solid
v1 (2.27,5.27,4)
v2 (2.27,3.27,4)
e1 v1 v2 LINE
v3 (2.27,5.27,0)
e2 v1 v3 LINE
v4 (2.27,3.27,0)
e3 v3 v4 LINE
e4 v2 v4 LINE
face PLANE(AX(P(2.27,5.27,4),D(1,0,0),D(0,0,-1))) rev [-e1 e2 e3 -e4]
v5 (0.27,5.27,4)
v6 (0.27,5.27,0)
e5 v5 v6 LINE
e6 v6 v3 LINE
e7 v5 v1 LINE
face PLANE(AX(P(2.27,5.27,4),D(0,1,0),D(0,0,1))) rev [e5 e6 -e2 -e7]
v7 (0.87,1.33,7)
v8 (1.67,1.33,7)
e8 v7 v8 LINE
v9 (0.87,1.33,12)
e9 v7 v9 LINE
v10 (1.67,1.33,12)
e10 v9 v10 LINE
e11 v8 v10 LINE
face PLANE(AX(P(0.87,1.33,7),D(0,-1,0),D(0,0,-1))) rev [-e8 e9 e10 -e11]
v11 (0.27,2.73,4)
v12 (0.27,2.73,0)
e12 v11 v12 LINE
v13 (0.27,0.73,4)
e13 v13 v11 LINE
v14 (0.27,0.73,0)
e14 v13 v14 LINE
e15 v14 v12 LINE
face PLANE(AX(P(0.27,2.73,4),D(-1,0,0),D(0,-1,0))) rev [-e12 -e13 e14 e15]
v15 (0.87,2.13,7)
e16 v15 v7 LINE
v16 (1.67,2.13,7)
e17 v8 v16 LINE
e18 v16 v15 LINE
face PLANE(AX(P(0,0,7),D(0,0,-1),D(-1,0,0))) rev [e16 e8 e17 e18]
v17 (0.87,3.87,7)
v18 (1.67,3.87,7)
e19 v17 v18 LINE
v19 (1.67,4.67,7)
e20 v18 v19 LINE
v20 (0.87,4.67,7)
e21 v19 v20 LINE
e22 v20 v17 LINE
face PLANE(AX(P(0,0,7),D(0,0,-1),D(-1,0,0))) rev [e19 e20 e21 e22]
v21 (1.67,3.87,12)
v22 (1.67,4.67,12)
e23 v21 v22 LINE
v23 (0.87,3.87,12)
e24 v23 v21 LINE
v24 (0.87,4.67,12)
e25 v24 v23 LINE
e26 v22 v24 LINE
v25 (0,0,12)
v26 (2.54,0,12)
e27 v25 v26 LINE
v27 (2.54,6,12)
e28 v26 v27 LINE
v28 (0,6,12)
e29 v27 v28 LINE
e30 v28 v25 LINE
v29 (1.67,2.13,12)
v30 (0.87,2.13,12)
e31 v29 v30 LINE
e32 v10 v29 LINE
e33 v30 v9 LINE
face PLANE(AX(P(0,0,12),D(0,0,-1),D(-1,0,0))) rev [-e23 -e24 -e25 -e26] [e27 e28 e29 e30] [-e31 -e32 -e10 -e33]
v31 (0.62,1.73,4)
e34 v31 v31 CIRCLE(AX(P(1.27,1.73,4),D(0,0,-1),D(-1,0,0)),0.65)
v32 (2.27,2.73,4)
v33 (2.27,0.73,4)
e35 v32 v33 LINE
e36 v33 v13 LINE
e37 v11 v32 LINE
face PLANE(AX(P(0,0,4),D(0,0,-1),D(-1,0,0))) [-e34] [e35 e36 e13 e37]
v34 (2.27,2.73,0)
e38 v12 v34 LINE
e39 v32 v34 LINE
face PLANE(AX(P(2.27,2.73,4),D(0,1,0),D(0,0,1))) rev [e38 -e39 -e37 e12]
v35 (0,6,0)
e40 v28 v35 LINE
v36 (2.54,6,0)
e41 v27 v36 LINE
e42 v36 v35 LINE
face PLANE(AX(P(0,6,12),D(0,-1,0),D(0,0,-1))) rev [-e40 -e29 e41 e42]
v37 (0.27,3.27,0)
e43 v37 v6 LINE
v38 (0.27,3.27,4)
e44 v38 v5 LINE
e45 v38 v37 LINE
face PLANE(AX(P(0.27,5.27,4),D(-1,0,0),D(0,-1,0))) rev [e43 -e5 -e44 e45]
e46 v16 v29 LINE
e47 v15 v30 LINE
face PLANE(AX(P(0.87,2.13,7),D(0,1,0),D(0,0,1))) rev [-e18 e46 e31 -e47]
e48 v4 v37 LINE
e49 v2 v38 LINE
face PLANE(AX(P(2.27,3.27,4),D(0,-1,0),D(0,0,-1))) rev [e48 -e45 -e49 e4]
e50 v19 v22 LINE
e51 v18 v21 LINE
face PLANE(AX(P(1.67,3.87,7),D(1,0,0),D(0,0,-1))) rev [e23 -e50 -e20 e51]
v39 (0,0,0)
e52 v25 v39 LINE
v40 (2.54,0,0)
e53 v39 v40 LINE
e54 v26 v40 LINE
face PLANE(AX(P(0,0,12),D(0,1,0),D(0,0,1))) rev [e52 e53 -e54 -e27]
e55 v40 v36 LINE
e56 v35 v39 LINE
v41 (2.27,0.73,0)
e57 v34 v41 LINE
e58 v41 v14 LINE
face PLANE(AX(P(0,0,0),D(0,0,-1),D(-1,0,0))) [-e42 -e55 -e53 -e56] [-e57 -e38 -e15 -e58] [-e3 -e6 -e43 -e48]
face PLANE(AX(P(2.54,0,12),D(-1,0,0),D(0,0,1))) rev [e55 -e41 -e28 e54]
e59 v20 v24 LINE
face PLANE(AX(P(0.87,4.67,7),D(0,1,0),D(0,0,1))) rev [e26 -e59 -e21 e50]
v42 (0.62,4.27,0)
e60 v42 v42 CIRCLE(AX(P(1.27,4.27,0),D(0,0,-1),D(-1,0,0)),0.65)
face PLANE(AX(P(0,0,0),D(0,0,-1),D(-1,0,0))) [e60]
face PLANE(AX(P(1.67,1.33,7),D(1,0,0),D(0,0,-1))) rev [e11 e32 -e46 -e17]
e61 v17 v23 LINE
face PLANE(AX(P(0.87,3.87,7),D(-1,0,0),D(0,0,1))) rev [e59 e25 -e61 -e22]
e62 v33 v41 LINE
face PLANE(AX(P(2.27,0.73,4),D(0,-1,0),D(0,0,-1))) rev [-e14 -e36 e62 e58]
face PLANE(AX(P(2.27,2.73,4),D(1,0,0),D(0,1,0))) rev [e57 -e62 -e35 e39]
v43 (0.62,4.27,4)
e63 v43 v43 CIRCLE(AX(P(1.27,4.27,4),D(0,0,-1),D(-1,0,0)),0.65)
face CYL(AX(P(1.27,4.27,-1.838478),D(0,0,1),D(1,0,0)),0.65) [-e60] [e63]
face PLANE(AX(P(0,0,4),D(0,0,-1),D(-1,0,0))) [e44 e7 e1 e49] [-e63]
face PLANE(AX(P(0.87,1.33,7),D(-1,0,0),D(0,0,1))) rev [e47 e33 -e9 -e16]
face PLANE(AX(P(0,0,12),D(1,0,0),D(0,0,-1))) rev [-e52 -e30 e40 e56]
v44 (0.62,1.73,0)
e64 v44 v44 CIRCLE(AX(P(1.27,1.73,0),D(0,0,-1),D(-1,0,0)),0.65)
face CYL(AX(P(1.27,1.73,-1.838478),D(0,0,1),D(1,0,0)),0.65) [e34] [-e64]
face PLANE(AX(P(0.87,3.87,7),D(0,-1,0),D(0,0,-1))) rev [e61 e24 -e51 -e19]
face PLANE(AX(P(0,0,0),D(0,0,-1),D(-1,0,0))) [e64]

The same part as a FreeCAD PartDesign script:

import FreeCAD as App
import Part
import Sketcher
from FreeCAD import Vector

doc = App.newDocument("Part")
body = doc.addObject("PartDesign::Body", "Body")

# Sketch on XY plane
sketch1 = body.newObject("Sketcher::SketchObject", "Sketch")
sketch1.AttachmentSupport = (doc.getObject("XY_Plane"), [""])
sketch1.MapMode = "FlatFace"
sketch1.addGeometry([
    Part.LineSegment(Vector(0, 6, 0), Vector(0, 0, 0)),
    Part.LineSegment(Vector(0, 0, 0), Vector(2.5, 0, 0)),
    Part.LineSegment(Vector(2.5, 0, 0), Vector(2.5, 6, 0)),
    Part.LineSegment(Vector(2.5, 6, 0), Vector(0, 6, 0)),
], False)
sketch1.addConstraint([
    Sketcher.Constraint("Coincident", 0, 2, 1, 1),
    Sketcher.Constraint("Coincident", 1, 2, 2, 1),
    Sketcher.Constraint("Coincident", 2, 2, 3, 1),
    Sketcher.Constraint("Coincident", 3, 2, 0, 1),
    Sketcher.Constraint("Vertical", 0),
    Sketcher.Constraint("Horizontal", 1),
    Sketcher.Constraint("Vertical", 2),
    Sketcher.Constraint("Horizontal", 3),
    Sketcher.Constraint("Coincident", 0, 2, -1, 1),
    Sketcher.Constraint("DistanceY", 0, 2, 0, 1, 6.0),
    Sketcher.Constraint("DistanceX", 1, 1, 1, 2, 2.54),
])
pad1 = body.newObject("PartDesign::Pad", "Pad")
pad1.Profile = sketch1
pad1.Length = 12

# Sketch on XY plane
sketch2 = body.newObject("Sketcher::SketchObject", "Sketch001")
sketch2.AttachmentSupport = (doc.getObject("XY_Plane"), [""])
sketch2.MapMode = "FlatFace"
sketch2.addGeometry([
    Part.LineSegment(Vector(2.3, 5.3, 0), Vector(2.3, 3.3, 0)),  # 0
    Part.LineSegment(Vector(2.3, 3.3, 0), Vector(0.3, 3.3, 0)),  # 1
    Part.LineSegment(Vector(0.3, 3.3, 0), Vector(0.3, 5.3, 0)),  # 2
    Part.LineSegment(Vector(0.3, 5.3, 0), Vector(2.3, 5.3, 0)),  # 3
    Part.LineSegment(Vector(2.3, 2.7, 0), Vector(2.3, 0.7, 0)),  # 4
    Part.LineSegment(Vector(2.3, 0.7, 0), Vector(0.3, 0.7, 0)),  # 5
    Part.LineSegment(Vector(0.3, 0.7, 0), Vector(0.3, 2.7, 0)),  # 6
    Part.LineSegment(Vector(0.3, 2.7, 0), Vector(2.3, 2.7, 0)),  # 7
], False)
sketch2.addConstraint([
    Sketcher.Constraint("Coincident", 0, 2, 1, 1),
    Sketcher.Constraint("Coincident", 1, 2, 2, 1),
    Sketcher.Constraint("Coincident", 2, 2, 3, 1),
    Sketcher.Constraint("Coincident", 3, 2, 0, 1),
    Sketcher.Constraint("Coincident", 4, 2, 5, 1),
    Sketcher.Constraint("Coincident", 5, 2, 6, 1),
    Sketcher.Constraint("Coincident", 6, 2, 7, 1),
    Sketcher.Constraint("Coincident", 7, 2, 4, 1),
    Sketcher.Constraint("Vertical", 0),
    Sketcher.Constraint("Horizontal", 1),
    Sketcher.Constraint("Vertical", 2),
    Sketcher.Constraint("Horizontal", 3),
    Sketcher.Constraint("Vertical", 4),
    Sketcher.Constraint("Horizontal", 5),
    Sketcher.Constraint("Vertical", 6),
    Sketcher.Constraint("Horizontal", 7),
    Sketcher.Constraint("Vertical", 3, 2, 4, 2),
    Sketcher.Constraint("Vertical", 2, 2, 5, 2),
    Sketcher.Constraint("Equal", 7, 0),
    Sketcher.Constraint("Equal", 2, 4),
    Sketcher.Constraint("DistanceX", 1, 2, 1, 1, 2.0),
    Sketcher.Constraint("DistanceX", -1, 1, 0, 2, 2.27),
    Sketcher.Constraint("DistanceY", -1, 1, 0, 2, 3.27),
    Sketcher.Constraint("DistanceY", -1, 1, 4, 2, 0.73),
])
pocket1 = body.newObject("PartDesign::Pocket", "Pocket")
pocket1.Profile = sketch2
pocket1.Length = 4
pocket1.Reversed = True

# Sketch on XY plane
sketch3 = body.newObject("Sketcher::SketchObject", "Sketch002")
sketch3.AttachmentSupport = (doc.getObject("XY_Plane"), [""])
sketch3.MapMode = "FlatFace"
sketch3.AttachmentOffset = App.Placement(Vector(0, 0, 4), App.Rotation())
sketch3.addGeometry([
    Part.Circle(Vector(1.3, 4.3, 0), Vector(0, 0, 1), 0.7),
    Part.Circle(Vector(1.3, 1.7, 0), Vector(0, 0, 1), 0.7),
], False)
sketch3.addConstraint([
    Sketcher.Constraint("Equal", 0, 1),
    Sketcher.Constraint("Vertical", 0, 3, 1, 3),
    Sketcher.Constraint("Diameter", 0, 1.3),
    Sketcher.Constraint("DistanceX", -1, 1, 0, 3, 1.27),
    Sketcher.Constraint("DistanceY", -1, 1, 0, 3, 4.27),
    Sketcher.Constraint("DistanceY", -1, 1, 1, 3, 1.73),
])
pad2 = body.newObject("PartDesign::Pad", "Pad001")
pad2.Profile = sketch3
pad2.Length = 4
pad2.Reversed = True

# Sketch on XY plane
sketch4 = body.newObject("Sketcher::SketchObject", "Sketch003")
sketch4.AttachmentSupport = (doc.getObject("XY_Plane"), [""])
sketch4.MapMode = "FlatFace"
sketch4.AttachmentOffset = App.Placement(Vector(0, 0, 12), App.Rotation())
sketch4.addGeometry([
    Part.LineSegment(Vector(0.9, 4.7, 0), Vector(0.9, 3.9, 0)),  # 0
    Part.LineSegment(Vector(0.9, 3.9, 0), Vector(1.7, 3.9, 0)),  # 1
    Part.LineSegment(Vector(1.7, 3.9, 0), Vector(1.7, 4.7, 0)),  # 2
    Part.LineSegment(Vector(1.7, 4.7, 0), Vector(0.9, 4.7, 0)),  # 3
    Part.LineSegment(Vector(0.9, 2.1, 0), Vector(0.9, 1.3, 0)),  # 4
    Part.LineSegment(Vector(0.9, 1.3, 0), Vector(1.7, 1.3, 0)),  # 5
    Part.LineSegment(Vector(1.7, 1.3, 0), Vector(1.7, 2.1, 0)),  # 6
    Part.LineSegment(Vector(1.7, 2.1, 0), Vector(0.9, 2.1, 0)),  # 7
], False)
sketch4.addConstraint([
    Sketcher.Constraint("Coincident", 0, 2, 1, 1),
    Sketcher.Constraint("Coincident", 1, 2, 2, 1),
    Sketcher.Constraint("Coincident", 2, 2, 3, 1),
    Sketcher.Constraint("Coincident", 3, 2, 0, 1),
    Sketcher.Constraint("Coincident", 4, 2, 5, 1),
    Sketcher.Constraint("Coincident", 5, 2, 6, 1),
    Sketcher.Constraint("Coincident", 6, 2, 7, 1),
    Sketcher.Constraint("Coincident", 7, 2, 4, 1),
    Sketcher.Constraint("Vertical", 0),
    Sketcher.Constraint("Horizontal", 1),
    Sketcher.Constraint("Vertical", 2),
    Sketcher.Constraint("Horizontal", 3),
    Sketcher.Constraint("Vertical", 4),
    Sketcher.Constraint("Horizontal", 5),
    Sketcher.Constraint("Vertical", 6),
    Sketcher.Constraint("Horizontal", 7),
    Sketcher.Constraint("Vertical", 3, 2, 4, 2),
    Sketcher.Constraint("Vertical", 2, 2, 5, 2),
    Sketcher.Constraint("Equal", 7, 0),
    Sketcher.Constraint("Equal", 2, 4),
    Sketcher.Constraint("DistanceX", 1, 1, 1, 2, 0.8),
    Sketcher.Constraint("DistanceX", -1, 1, 0, 2, 0.87),
    Sketcher.Constraint("DistanceY", -1, 1, 0, 2, 3.87),
    Sketcher.Constraint("DistanceY", -1, 1, 4, 2, 1.33),
])
pocket2 = body.newObject("PartDesign::Pocket", "Pocket001")
pocket2.Profile = sketch4
pocket2.Length = 5

doc.recompute()
